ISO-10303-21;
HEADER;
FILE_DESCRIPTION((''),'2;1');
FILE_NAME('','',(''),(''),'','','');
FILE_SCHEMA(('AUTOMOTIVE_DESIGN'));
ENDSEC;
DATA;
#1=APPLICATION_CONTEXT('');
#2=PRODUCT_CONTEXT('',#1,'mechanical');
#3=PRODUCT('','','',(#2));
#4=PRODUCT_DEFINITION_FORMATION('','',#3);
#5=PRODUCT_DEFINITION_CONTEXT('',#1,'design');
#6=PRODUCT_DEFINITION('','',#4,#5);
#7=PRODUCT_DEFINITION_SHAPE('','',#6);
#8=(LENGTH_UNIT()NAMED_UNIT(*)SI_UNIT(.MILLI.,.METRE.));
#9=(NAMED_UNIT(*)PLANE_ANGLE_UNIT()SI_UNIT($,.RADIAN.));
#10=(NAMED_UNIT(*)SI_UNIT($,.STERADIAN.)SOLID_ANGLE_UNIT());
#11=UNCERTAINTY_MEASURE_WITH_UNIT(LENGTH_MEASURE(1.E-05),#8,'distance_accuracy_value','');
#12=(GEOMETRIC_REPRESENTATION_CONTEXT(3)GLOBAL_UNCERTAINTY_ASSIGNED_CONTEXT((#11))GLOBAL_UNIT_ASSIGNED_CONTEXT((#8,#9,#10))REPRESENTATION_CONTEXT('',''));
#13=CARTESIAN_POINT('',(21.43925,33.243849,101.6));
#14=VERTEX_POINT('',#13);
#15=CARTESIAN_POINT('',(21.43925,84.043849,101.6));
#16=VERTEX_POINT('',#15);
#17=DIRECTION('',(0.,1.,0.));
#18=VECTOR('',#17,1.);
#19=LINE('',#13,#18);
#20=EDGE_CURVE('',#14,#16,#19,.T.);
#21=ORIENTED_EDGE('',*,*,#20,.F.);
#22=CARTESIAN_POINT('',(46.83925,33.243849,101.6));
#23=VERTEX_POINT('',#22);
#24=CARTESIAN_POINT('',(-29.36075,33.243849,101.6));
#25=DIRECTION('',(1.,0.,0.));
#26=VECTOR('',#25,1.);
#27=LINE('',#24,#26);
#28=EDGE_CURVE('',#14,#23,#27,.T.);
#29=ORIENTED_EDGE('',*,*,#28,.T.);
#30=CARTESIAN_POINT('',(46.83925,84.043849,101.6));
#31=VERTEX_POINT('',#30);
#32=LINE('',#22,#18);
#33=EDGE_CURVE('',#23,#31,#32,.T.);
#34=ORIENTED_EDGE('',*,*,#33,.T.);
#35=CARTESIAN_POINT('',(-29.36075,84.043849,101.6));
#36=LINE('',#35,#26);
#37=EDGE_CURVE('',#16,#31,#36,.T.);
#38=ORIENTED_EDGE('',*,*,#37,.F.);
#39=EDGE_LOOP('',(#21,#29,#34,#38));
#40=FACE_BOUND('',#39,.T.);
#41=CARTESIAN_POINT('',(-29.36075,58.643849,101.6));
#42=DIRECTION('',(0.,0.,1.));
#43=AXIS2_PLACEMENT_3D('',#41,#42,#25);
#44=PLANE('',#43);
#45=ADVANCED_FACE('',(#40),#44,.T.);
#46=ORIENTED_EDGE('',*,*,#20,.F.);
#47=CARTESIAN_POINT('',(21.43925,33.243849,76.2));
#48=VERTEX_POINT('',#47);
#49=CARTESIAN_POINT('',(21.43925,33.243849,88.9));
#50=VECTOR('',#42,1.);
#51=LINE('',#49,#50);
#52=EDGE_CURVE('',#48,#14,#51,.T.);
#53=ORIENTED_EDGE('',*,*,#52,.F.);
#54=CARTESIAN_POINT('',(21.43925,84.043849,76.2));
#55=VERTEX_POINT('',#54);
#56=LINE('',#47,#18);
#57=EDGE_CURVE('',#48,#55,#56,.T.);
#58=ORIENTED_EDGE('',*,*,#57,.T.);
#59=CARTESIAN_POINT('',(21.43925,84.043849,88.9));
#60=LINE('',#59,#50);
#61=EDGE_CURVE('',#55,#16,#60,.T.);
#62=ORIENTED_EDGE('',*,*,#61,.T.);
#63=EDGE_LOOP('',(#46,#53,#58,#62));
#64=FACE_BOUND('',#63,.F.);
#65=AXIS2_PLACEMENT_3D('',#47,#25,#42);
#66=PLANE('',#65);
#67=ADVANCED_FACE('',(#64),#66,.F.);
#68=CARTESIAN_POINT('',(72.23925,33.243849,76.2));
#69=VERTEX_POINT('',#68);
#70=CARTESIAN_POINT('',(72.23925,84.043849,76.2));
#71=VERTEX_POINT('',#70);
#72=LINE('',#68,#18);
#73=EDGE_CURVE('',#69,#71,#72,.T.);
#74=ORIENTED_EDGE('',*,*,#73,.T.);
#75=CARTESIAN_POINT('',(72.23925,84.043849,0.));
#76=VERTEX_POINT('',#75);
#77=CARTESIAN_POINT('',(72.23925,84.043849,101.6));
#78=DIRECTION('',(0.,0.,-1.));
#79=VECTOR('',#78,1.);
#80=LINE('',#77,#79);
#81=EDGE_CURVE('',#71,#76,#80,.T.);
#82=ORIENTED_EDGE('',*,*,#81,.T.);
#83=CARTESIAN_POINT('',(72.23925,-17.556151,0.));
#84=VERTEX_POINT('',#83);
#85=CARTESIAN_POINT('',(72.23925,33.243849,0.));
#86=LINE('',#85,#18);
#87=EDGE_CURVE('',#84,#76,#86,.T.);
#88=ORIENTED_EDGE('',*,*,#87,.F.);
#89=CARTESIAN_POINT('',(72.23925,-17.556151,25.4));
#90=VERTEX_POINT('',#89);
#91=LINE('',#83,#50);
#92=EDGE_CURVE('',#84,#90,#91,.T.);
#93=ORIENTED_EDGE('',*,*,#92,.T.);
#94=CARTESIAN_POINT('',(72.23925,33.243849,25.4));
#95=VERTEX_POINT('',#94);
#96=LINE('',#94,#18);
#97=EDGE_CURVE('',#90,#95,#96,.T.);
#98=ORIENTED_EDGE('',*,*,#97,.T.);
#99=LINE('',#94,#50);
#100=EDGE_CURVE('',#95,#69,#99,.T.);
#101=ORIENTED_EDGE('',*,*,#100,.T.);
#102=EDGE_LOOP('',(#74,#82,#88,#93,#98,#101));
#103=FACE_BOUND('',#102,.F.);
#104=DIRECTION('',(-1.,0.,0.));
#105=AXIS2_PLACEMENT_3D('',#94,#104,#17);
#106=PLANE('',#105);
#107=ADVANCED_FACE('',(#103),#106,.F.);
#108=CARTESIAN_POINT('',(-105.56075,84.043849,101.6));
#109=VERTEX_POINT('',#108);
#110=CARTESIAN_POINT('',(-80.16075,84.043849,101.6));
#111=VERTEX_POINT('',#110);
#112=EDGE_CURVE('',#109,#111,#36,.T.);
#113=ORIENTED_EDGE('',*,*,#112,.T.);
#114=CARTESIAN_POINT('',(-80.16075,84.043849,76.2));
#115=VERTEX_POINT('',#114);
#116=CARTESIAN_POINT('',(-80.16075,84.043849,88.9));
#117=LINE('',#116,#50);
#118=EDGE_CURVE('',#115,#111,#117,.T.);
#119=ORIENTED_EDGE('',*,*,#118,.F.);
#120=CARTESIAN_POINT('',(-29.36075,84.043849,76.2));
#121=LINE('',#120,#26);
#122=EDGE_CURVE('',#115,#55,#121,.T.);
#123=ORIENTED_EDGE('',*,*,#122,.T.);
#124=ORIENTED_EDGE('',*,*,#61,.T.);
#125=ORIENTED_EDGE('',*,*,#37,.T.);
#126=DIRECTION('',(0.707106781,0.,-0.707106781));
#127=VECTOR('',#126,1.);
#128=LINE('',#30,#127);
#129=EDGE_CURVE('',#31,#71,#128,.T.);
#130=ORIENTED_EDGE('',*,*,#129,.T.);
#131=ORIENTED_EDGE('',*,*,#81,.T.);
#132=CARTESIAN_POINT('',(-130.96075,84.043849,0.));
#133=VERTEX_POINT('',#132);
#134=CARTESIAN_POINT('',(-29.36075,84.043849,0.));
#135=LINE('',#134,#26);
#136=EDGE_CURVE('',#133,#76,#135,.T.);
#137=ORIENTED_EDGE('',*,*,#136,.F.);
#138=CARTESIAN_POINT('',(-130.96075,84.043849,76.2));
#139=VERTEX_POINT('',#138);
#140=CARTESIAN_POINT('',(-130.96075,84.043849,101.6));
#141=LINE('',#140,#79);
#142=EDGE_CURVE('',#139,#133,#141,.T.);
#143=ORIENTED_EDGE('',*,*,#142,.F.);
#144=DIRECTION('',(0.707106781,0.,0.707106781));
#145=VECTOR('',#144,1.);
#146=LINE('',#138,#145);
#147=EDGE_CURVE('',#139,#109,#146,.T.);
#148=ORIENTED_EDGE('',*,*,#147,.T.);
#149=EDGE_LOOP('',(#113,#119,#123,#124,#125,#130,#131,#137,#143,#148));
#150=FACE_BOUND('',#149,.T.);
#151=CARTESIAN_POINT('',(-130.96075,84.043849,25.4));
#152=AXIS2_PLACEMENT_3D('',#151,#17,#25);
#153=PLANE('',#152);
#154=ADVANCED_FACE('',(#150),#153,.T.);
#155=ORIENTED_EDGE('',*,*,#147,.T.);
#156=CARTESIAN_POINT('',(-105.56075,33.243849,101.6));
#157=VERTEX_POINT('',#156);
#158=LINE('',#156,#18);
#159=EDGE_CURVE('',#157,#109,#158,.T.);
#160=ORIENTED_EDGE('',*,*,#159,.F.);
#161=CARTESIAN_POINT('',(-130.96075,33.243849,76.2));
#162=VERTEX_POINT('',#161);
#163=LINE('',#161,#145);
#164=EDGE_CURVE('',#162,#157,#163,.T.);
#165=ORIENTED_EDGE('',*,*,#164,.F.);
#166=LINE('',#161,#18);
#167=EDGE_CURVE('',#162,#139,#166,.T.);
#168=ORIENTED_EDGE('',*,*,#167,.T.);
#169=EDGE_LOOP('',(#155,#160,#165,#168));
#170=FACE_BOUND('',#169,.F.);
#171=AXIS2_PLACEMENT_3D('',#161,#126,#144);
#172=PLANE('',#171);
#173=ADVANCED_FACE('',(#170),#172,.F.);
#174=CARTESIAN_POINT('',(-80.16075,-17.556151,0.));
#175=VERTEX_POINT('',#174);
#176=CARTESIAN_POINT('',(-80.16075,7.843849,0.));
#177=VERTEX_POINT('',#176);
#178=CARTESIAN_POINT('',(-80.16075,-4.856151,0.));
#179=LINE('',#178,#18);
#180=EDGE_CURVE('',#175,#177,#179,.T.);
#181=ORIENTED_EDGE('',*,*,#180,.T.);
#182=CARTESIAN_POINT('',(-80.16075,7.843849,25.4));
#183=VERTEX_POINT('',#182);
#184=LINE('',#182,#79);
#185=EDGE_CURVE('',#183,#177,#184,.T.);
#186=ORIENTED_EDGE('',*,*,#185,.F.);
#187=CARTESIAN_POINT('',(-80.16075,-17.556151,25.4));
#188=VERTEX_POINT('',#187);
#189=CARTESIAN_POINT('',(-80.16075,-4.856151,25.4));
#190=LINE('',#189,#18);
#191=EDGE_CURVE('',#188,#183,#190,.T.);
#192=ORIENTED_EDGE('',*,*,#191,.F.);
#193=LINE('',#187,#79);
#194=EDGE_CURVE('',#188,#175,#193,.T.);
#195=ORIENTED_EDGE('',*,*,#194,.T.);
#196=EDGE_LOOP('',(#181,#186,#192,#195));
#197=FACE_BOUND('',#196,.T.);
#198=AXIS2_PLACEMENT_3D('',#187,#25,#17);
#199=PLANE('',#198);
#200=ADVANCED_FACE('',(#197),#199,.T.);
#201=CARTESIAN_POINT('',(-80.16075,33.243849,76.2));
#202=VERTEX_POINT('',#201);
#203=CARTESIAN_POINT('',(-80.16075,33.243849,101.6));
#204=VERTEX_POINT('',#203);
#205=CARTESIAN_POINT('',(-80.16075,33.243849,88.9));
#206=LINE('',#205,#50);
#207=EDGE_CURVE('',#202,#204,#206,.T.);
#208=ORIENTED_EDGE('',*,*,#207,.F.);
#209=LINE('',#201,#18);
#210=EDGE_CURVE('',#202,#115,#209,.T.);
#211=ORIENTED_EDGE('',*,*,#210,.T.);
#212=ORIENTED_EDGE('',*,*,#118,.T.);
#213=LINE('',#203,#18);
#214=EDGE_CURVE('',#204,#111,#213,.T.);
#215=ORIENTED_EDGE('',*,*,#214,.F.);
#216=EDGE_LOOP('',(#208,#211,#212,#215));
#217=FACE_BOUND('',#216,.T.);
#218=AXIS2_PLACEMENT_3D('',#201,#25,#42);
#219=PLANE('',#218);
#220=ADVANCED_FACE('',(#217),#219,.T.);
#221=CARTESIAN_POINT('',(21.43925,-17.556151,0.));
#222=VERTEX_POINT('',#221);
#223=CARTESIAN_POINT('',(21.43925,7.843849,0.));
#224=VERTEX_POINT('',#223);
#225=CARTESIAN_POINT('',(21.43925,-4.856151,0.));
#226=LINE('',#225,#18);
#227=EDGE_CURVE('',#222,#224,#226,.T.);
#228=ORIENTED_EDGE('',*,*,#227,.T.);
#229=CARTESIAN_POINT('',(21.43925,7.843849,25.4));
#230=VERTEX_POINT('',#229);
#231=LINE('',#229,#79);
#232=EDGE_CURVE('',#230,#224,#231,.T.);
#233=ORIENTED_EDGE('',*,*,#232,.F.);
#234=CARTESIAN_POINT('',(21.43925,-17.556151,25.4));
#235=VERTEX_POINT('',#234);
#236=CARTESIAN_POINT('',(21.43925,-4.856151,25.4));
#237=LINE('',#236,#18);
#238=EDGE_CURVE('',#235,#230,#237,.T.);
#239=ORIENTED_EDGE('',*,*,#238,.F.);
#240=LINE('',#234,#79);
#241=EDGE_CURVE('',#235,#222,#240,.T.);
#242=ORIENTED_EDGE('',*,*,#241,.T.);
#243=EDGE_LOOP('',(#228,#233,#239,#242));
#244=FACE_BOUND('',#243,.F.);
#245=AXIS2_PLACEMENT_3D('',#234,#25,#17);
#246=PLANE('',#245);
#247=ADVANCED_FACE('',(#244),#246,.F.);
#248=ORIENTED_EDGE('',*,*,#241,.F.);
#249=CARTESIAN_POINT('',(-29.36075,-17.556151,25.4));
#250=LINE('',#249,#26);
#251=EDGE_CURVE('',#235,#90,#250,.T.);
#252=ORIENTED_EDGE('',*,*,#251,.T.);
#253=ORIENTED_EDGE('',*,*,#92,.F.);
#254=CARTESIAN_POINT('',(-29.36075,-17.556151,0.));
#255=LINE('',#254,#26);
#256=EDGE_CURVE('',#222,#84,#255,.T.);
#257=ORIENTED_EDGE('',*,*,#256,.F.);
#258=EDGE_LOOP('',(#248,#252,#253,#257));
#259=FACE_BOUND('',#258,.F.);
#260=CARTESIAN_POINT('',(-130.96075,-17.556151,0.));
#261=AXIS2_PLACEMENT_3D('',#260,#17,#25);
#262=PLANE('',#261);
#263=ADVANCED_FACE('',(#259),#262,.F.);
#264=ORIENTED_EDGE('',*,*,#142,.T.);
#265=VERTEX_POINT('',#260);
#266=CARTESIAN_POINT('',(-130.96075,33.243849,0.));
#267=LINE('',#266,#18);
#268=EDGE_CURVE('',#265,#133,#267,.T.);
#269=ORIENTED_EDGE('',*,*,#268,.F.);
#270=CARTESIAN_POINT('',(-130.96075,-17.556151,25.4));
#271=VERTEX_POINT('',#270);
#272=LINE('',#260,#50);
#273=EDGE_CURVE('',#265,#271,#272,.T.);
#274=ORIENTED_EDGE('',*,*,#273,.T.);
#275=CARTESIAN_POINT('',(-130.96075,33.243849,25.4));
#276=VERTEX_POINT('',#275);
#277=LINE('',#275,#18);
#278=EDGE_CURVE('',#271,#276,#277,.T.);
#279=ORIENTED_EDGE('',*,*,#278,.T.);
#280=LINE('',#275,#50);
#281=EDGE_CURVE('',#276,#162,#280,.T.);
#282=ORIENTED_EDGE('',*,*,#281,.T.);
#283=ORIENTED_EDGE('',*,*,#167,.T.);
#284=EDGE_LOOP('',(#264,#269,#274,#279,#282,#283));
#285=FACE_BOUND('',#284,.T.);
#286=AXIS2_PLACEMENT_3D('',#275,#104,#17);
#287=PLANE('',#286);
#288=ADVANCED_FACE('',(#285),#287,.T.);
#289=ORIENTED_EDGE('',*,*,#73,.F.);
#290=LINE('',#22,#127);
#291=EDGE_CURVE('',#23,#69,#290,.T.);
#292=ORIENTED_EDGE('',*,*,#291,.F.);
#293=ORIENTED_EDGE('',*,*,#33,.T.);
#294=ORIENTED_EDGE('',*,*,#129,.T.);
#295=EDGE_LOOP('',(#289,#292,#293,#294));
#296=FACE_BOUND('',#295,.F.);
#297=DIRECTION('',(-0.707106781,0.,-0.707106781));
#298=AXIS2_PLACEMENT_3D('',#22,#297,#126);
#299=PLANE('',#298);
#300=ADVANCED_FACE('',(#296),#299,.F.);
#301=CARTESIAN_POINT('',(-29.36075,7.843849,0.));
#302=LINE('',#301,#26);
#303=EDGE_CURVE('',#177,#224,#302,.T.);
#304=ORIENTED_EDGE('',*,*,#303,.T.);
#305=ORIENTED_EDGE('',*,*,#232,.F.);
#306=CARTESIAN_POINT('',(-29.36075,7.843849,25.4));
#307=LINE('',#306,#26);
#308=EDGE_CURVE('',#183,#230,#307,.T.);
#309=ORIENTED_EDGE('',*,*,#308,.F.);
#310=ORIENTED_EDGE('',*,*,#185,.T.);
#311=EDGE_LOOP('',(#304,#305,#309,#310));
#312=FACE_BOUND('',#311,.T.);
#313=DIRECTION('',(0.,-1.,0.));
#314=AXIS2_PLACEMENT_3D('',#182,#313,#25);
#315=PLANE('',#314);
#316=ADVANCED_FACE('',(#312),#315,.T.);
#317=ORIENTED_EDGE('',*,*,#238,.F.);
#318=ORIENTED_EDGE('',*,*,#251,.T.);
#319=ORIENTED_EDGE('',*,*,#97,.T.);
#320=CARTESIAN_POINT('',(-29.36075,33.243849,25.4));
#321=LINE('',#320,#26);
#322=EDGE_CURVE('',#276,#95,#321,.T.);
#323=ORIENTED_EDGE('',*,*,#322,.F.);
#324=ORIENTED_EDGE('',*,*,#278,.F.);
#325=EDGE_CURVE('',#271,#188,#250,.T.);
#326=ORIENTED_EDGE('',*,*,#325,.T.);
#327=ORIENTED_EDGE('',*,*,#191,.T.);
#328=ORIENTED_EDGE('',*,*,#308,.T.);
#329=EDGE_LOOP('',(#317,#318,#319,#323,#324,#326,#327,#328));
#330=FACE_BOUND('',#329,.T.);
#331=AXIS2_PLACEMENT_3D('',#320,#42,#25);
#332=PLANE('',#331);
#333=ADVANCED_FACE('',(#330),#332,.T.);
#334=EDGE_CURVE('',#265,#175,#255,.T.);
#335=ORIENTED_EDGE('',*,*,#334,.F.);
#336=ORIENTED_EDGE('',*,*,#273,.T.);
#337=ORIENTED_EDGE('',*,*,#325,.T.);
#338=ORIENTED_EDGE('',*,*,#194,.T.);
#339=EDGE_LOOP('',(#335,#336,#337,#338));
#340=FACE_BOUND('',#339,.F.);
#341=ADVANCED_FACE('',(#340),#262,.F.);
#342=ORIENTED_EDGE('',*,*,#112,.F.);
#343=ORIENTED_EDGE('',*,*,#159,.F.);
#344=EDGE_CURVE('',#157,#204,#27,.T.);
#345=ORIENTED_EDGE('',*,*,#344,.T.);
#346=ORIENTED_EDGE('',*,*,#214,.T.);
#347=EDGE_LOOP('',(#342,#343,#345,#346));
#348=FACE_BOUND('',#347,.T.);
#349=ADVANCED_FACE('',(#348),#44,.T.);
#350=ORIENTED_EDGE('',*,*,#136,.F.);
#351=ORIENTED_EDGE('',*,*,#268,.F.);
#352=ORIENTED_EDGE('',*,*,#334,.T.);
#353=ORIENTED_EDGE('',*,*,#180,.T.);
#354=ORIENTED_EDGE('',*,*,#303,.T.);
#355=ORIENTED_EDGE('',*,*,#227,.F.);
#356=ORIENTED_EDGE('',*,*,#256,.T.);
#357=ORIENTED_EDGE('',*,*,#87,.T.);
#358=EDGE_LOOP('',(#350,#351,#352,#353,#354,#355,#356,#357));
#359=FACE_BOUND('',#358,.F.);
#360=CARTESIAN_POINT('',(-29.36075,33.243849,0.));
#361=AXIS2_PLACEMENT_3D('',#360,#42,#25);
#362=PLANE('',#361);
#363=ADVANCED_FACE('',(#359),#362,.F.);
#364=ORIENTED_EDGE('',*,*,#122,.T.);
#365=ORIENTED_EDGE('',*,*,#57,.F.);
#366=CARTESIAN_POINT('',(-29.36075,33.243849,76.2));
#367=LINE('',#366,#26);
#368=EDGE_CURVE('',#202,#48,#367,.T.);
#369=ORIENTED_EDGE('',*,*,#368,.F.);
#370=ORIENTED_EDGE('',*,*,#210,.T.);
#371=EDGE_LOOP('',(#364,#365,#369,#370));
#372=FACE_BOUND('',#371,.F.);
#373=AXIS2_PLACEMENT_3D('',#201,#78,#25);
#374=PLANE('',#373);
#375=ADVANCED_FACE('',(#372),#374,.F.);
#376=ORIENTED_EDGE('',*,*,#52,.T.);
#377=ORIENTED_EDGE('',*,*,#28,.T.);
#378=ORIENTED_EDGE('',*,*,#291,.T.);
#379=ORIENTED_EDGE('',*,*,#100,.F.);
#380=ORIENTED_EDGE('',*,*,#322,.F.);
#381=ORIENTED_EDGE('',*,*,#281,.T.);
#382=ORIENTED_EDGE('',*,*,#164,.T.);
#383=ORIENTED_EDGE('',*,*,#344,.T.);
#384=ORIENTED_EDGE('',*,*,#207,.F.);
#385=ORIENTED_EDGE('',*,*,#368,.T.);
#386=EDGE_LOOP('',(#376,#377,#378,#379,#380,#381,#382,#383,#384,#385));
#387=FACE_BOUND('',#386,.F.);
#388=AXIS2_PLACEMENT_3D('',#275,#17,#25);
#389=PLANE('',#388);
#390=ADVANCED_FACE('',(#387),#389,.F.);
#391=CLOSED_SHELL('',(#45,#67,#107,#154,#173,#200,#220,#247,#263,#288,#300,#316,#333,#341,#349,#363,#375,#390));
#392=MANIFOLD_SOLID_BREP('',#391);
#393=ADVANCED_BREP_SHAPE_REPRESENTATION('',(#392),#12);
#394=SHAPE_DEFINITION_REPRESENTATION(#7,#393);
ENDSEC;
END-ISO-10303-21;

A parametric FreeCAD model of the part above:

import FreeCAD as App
import Part
import Sketcher

V = App.Vector
Q = App.Units.Quantity

doc = App.newDocument("Part")
body = doc.addObject("PartDesign::Body", "Body")

sketch1 = body.newObject("Sketcher::SketchObject", "Sketch")
sketch1.AttachmentSupport = (doc.getObject("XY_Plane"), [""])
sketch1.MapMode = "FlatFace"
sketch1.addGeometry([
    Part.LineSegment(V(-131, 84, 0), V(-131, -18, 0)),
    Part.LineSegment(V(-131, -18, 0), V(72, -18, 0)),
    Part.LineSegment(V(72, -18, 0), V(72, 84, 0)),
    Part.LineSegment(V(72, 84, 0), V(-131, 84, 0)),
], False)
sketch1.addConstraint([
    Sketcher.Constraint("Coincident", 0, 2, 1, 1),
    Sketcher.Constraint("Coincident", 1, 2, 2, 1),
    Sketcher.Constraint("Coincident", 2, 2, 3, 1),
    Sketcher.Constraint("Coincident", 3, 2, 0, 1),
    Sketcher.Constraint("Vertical", 0),
    Sketcher.Constraint("Horizontal", 1),
    Sketcher.Constraint("Vertical", 2),
    Sketcher.Constraint("Horizontal", 3),
    Sketcher.Constraint("DistanceX", 1, 1, 1, 2, Q("8 in")),
    Sketcher.Constraint("DistanceY", 0, 2, 0, 1, Q("4 in")),
    Sketcher.Constraint("DistanceX", 0, 2, -1, 1, 130.96075),
    Sketcher.Constraint("DistanceY", 0, 2, -1, 1, 17.556151),
])
pad1 = body.newObject("PartDesign::Pad", "Pad")
pad1.Profile = sketch1
pad1.Length = Q("1 in")

sketch2 = body.newObject("Sketcher::SketchObject", "Sketch001")
sketch2.AttachmentSupport = (doc.getObject("XY_Plane"), [""])
sketch2.MapMode = "FlatFace"
sketch2.AttachmentOffset = App.Placement(V(0, 0, 1 * 25.4), App.Rotation())
sketch2.addGeometry([
    Part.LineSegment(V(-131, 84, 0), V(-131, 33, 0)),
    Part.LineSegment(V(-131, 33, 0), V(72, 33, 0)),
    Part.LineSegment(V(72, 33, 0), V(72, 84, 0)),
    Part.LineSegment(V(72, 84, 0), V(-131, 84, 0)),
], False)
sketch2.addConstraint([
    Sketcher.Constraint("Coincident", 0, 2, 1, 1),
    Sketcher.Constraint("Coincident", 1, 2, 2, 1),
    Sketcher.Constraint("Coincident", 2, 2, 3, 1),
    Sketcher.Constraint("Coincident", 3, 2, 0, 1),
    Sketcher.Constraint("Vertical", 0),
    Sketcher.Constraint("Horizontal", 1),
    Sketcher.Constraint("Vertical", 2),
    Sketcher.Constraint("Horizontal", 3),
    Sketcher.Constraint("DistanceX", 1, 1, 1, 2, Q("8 in")),
    Sketcher.Constraint("DistanceY", 0, 2, 0, 1, Q("2 in")),
    Sketcher.Constraint("DistanceX", 0, 2, -1, 1, 130.96075),
    Sketcher.Constraint("DistanceY", -1, 1, 0, 2, 33.243849),
])
pad2 = body.newObject("PartDesign::Pad", "Pad001")
pad2.Profile = sketch2
pad2.Length = Q("3 in")

sketch3 = body.newObject("Sketcher::SketchObject", "Sketch002")
sketch3.AttachmentSupport = (doc.getObject("XY_Plane"), [""])
sketch3.MapMode = "FlatFace"
sketch3.AttachmentOffset = App.Placement(V(0, 0, 1 * 25.4), App.Rotation())
sketch3.addGeometry([
    Part.LineSegment(V(-80, 8, 0), V(-80, -18, 0)),
    Part.LineSegment(V(-80, -18, 0), V(21, -18, 0)),
    Part.LineSegment(V(21, -18, 0), V(21, 8, 0)),
    Part.LineSegment(V(21, 8, 0), V(-80, 8, 0)),
], False)
sketch3.addConstraint([
    Sketcher.Constraint("Coincident", 0, 2, 1, 1),
    Sketcher.Constraint("Coincident", 1, 2, 2, 1),
    Sketcher.Constraint("Coincident", 2, 2, 3, 1),
    Sketcher.Constraint("Coincident", 3, 2, 0, 1),
    Sketcher.Constraint("Vertical", 0),
    Sketcher.Constraint("Horizontal", 1),
    Sketcher.Constraint("Vertical", 2),
    Sketcher.Constraint("Horizontal", 3),
    Sketcher.Constraint("DistanceX", 1, 1, 1, 2, Q("4 in")),
    Sketcher.Constraint("DistanceY", 0, 2, 0, 1, Q("1 in")),
    Sketcher.Constraint("DistanceX", 0, 2, -1, 1, 80.16075),
    Sketcher.Constraint("DistanceY", 0, 2, -1, 1, 17.556151),
])
pocket1 = body.newObject("PartDesign::Pocket", "Pocket")
pocket1.Profile = sketch3
pocket1.Type = "ThroughAll"

sketch4 = body.newObject("Sketcher::SketchObject", "Sketch003")
sketch4.AttachmentSupport = (doc.getObject("XZ_Plane"), [""])
sketch4.MapMode = "FlatFace"
sketch4.AttachmentOffset = App.Placement(V(0, 0, -33.243849), App.Rotation())
sketch4.addGeometry([
    Part.LineSegment(V(-80, 102, 0), V(-80, 76, 0)),
    Part.LineSegment(V(-80, 76, 0), V(21, 76, 0)),
    Part.LineSegment(V(21, 76, 0), V(21, 102, 0)),
    Part.LineSegment(V(21, 102, 0), V(-80, 102, 0)),
], False)
sketch4.addConstraint([
    Sketcher.Constraint("Coincident", 0, 2, 1, 1),
    Sketcher.Constraint("Coincident", 1, 2, 2, 1),
    Sketcher.Constraint("Coincident", 2, 2, 3, 1),
    Sketcher.Constraint("Coincident", 3, 2, 0, 1),
    Sketcher.Constraint("Vertical", 0),
    Sketcher.Constraint("Horizontal", 1),
    Sketcher.Constraint("Vertical", 2),
    Sketcher.Constraint("Horizontal", 3),
    Sketcher.Constraint("DistanceX", 1, 1, 1, 2, Q("4 in")),
    Sketcher.Constraint("DistanceY", 0, 2, 0, 1, Q("1 in")),
    Sketcher.Constraint("DistanceY", -1, 1, 0, 2, Q("3 in")),
    Sketcher.Constraint("DistanceX", 0, 2, -1, 1, 80.16075),
])
pocket2 = body.newObject("PartDesign::Pocket", "Pocket001")
pocket2.Profile = sketch4
pocket2.Type = "ThroughAll"

sketch5 = body.newObject("Sketcher::SketchObject", "Sketch004")
sketch5.AttachmentSupport = (doc.getObject("XZ_Plane"), [""])
sketch5.MapMode = "FlatFace"
sketch5.AttachmentOffset = App.Placement(V(0, 0, -33.243849), App.Rotation())
sketch5.addGeometry([
    Part.LineSegment(V(-131, 76, 0), V(-106, 102, 0)),
    Part.LineSegment(V(-106, 102, 0), V(-131, 102, 0)),
    Part.LineSegment(V(-131, 102, 0), V(-131, 76, 0)),
    Part.LineSegment(V(72, 102, 0), V(47, 102, 0)),
    Part.LineSegment(V(47, 102, 0), V(72, 76, 0)),
    Part.LineSegment(V(72, 76, 0), V(72, 102, 0)),
], False)
sketch5.addConstraint([
    Sketcher.Constraint("Coincident", 0, 2, 1, 1),
    Sketcher.Constraint("Coincident", 1, 2, 2, 1),
    Sketcher.Constraint("Coincident", 2, 2, 0, 1),
    Sketcher.Constraint("Coincident", 3, 2, 4, 1),
    Sketcher.Constraint("Coincident", 4, 2, 5, 1),
    Sketcher.Constraint("Coincident", 5, 2, 3, 1),
    Sketcher.Constraint("Horizontal", 1),
    Sketcher.Constraint("Vertical", 2),
    Sketcher.Constraint("Horizontal", 3),
    Sketcher.Constraint("Vertical", 5),
    Sketcher.Constraint("Perpendicular", 0, 4),
    Sketcher.Constraint("Horizontal", 1, 2, 3, 2),
    Sketcher.Constraint("Horizontal", 2, 2, 4, 2),
    Sketcher.Constraint("Equal", 1, 3),
    Sketcher.Constraint("DistanceX", 1, 2, 1, 1, Q("1 in")),
    Sketcher.Constraint("DistanceY", -1, 1, 0, 2, Q("4 in")),
    Sketcher.Constraint("DistanceX", 0, 2, 3, 2, Q("6 in")),
    Sketcher.Constraint("DistanceX", 0, 2, -1, 1, 105.56075),
])
pocket3 = body.newObject("PartDesign::Pocket", "Pocket002")
pocket3.Profile = sketch5
pocket3.Type = "ThroughAll"

doc.recompute()
